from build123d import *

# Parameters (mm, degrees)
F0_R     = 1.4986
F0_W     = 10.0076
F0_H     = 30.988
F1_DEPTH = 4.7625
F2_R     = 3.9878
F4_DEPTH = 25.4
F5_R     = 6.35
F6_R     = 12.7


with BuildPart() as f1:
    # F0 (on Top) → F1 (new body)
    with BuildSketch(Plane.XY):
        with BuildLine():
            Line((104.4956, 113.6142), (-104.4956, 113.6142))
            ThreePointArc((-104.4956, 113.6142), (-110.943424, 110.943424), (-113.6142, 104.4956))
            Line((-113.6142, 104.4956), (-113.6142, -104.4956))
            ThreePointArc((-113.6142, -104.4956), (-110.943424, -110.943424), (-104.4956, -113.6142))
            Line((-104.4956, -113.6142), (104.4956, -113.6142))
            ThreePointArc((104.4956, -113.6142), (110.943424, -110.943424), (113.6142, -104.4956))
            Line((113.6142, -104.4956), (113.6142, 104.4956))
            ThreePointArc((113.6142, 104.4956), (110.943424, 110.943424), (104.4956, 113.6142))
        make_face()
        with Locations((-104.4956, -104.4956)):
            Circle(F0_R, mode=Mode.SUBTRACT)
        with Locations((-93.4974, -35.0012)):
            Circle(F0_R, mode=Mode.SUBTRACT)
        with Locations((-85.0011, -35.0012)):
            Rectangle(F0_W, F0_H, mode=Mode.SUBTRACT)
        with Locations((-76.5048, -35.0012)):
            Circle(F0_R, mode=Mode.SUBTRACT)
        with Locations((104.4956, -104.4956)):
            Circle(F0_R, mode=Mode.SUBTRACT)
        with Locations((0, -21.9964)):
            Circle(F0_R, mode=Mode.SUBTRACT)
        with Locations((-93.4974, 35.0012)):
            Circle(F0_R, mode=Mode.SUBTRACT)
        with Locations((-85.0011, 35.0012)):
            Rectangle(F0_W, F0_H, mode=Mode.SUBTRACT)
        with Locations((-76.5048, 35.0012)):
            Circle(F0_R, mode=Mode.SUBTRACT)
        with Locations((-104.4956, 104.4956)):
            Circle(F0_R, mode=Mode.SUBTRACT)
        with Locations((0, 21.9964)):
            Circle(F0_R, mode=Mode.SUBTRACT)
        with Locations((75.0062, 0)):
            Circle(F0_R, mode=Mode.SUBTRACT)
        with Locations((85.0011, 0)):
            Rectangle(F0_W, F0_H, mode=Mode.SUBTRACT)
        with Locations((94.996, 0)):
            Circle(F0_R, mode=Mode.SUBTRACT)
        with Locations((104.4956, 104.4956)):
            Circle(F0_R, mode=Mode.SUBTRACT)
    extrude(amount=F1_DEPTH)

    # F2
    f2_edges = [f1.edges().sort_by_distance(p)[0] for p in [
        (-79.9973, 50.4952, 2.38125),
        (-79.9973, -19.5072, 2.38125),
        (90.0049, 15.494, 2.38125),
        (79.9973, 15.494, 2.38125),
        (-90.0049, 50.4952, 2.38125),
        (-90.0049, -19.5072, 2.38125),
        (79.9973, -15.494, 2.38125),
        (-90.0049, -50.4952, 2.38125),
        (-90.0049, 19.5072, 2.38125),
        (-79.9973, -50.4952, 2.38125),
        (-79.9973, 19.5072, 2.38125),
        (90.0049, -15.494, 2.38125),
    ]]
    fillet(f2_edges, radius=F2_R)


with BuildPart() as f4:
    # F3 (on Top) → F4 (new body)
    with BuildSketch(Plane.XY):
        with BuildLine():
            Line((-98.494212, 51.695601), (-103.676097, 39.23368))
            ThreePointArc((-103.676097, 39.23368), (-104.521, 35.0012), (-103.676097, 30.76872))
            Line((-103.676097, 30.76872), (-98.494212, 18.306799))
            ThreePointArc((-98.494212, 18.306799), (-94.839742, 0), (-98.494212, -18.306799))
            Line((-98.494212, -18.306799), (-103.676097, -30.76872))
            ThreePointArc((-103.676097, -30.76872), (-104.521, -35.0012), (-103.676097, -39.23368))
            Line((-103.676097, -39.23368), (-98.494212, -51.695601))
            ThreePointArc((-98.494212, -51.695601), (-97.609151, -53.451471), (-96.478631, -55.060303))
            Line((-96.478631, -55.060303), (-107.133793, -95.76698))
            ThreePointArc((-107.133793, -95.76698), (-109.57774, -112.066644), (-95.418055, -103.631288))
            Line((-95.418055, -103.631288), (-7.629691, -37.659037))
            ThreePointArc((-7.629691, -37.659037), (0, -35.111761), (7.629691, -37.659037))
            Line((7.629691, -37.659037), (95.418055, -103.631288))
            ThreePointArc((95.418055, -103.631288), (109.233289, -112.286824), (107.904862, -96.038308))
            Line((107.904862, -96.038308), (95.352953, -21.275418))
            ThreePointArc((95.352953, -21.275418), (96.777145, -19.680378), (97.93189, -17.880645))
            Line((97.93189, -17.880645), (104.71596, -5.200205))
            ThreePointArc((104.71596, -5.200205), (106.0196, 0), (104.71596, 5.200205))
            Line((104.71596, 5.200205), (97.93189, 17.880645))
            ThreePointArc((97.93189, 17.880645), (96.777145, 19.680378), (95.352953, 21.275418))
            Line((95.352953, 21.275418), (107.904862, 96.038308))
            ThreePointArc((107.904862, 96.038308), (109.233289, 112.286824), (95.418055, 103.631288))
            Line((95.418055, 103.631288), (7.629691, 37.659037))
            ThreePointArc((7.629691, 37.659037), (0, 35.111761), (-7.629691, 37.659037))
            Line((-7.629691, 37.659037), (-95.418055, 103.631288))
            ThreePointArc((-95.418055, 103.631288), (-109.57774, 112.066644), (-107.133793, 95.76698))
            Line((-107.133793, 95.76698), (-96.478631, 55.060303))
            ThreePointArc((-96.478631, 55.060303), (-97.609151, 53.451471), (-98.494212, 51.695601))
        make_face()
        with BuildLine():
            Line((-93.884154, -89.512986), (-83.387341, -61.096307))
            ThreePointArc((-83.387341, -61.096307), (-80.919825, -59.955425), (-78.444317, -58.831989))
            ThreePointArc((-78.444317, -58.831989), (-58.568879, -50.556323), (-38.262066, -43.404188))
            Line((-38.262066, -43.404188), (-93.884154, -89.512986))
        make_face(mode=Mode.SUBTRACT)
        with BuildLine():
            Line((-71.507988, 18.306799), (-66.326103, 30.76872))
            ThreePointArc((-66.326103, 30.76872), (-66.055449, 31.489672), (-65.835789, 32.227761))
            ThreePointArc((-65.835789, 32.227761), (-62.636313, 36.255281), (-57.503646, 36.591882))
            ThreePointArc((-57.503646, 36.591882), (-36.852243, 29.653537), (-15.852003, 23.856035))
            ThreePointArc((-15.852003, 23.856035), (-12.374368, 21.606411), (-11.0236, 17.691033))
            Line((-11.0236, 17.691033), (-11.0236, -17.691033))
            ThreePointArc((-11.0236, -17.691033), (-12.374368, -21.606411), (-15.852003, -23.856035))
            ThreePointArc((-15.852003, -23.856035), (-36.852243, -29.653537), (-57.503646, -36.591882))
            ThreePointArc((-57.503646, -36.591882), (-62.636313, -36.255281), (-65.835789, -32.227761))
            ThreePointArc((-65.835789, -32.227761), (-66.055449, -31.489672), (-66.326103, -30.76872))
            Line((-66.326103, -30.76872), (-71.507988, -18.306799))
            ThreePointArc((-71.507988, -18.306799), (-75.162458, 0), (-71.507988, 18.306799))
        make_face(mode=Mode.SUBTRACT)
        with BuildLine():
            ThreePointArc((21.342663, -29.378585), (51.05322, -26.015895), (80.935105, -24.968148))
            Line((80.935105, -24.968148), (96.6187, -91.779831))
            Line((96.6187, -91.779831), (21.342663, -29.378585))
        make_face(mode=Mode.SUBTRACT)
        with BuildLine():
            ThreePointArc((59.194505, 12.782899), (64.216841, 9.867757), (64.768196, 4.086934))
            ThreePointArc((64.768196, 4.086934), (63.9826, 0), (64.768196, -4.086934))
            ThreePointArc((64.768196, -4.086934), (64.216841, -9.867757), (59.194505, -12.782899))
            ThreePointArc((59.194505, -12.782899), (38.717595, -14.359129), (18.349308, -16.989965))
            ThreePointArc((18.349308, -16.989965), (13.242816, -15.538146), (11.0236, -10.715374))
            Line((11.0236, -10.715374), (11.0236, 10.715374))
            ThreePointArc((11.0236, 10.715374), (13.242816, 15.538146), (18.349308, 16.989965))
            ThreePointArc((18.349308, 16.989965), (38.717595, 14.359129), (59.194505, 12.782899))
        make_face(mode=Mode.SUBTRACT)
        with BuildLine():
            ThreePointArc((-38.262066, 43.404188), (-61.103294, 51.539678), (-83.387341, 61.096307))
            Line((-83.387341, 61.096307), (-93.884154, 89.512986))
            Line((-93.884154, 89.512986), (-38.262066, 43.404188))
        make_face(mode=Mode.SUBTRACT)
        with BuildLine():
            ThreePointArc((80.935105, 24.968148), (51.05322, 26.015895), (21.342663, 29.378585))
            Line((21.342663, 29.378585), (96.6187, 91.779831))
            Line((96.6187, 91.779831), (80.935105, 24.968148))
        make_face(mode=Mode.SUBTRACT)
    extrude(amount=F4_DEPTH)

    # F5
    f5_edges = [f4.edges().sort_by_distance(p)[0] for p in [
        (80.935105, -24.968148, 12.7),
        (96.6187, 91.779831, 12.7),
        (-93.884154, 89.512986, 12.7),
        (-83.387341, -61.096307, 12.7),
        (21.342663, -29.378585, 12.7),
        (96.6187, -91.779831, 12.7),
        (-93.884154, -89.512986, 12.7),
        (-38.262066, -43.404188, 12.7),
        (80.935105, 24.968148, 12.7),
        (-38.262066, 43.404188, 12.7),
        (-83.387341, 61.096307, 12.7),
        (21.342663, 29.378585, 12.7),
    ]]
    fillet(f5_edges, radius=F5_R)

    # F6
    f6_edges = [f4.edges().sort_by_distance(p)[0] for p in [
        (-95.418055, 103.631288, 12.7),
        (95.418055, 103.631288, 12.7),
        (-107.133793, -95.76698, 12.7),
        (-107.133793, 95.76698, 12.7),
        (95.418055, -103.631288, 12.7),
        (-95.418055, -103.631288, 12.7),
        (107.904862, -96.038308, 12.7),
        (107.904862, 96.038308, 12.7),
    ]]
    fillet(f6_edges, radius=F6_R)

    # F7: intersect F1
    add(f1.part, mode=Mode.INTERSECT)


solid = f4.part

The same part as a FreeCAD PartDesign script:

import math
import FreeCAD as App
import Part
import Sketcher
Q = App.Units.Quantity


def edges_at(feature, points):
    """Names of the edges that pass closest to the given points."""
    edges = feature.Shape.Edges
    near = lambda p: min(range(len(edges)), key=lambda i: edges[i].distToShape(Part.Vertex(*p))[0])
    return sorted({f"Edge{near(p) + 1}" for p in points})

doc = App.newDocument("Part")
params = doc.addObject("Spreadsheet::Sheet", "Params")
for row, (alias, value) in enumerate([
    ("sketch1_diameter", "0.118 in"),
    ("sketch1_radius", "0.359 in"),
    ("sketch1_height", "1.22 in"),
    ("sketch1_width", "8.228 in"),
    ("sketch1_width2", "0.394 in"),
    ("pad1_length", "0.1875 in"),
    ("fillet_radius", "0.157 in"),
    ("sketch2_radius", "0.4999999 in"),
    ("sketch2_radius2", "0.4999999 in"),
    ("sketch2_radius3", "0.25 in"),
    ("sketch2_radius4", "0.25 in"),
    ("sketch2_radius5", "0.25 in"),
    ("pad2_length", "1 in"),
    ("fillet2_radius", "0.25 in"),
    ("fillet3_radius", "0.5 in"),
], start=1):
    params.set(f"A{row}", alias)
    params.set(f"B{row}", "=" + value)
    params.setAlias(f"B{row}", alias)

body = doc.addObject("PartDesign::Body", "Body")

sketch1 = body.newObject("Sketcher::SketchObject", "Sketch")
sketch1.AttachmentSupport = (doc.getObject("XY_Plane"), [""])
sketch1.MapMode = "FlatFace"
sketch1.addGeometry(Part.LineSegment(App.Vector(104.4956, 113.6142, 0), App.Vector(-104.4956, 113.6142, 0)), False)
sketch1.addGeometry(Part.ArcOfCircle(Part.Circle(App.Vector(-104.4956, 104.4956, 0), App.Vector(0, 0, 1), 9.1186), math.radians(89.999998), math.radians(180.000002)), False)
sketch1.addGeometry(Part.LineSegment(App.Vector(-113.6142, 104.4956, 0), App.Vector(-113.6142, -104.4956, 0)), False)
sketch1.addGeometry(Part.ArcOfCircle(Part.Circle(App.Vector(-104.4956, -104.4956, 0), App.Vector(0, 0, 1), 9.1186), math.radians(179.999998), math.radians(270.000002)), False)
sketch1.addGeometry(Part.LineSegment(App.Vector(-104.4956, -113.6142, 0), App.Vector(104.4956, -113.6142, 0)), False)
sketch1.addGeometry(Part.ArcOfCircle(Part.Circle(App.Vector(104.4956, -104.4956, 0), App.Vector(0, 0, 1), 9.1186), math.radians(-90.000002), math.radians(0.000002)), False)
sketch1.addGeometry(Part.LineSegment(App.Vector(113.6142, -104.4956, 0), App.Vector(113.6142, 104.4956, 0)), False)
sketch1.addGeometry(Part.ArcOfCircle(Part.Circle(App.Vector(104.4956, 104.4956, 0), App.Vector(0, 0, 1), 9.1186), math.radians(-0.000002), math.radians(90.000002)), False)
sketch1.addGeometry(Part.Circle(App.Vector(-104.4956, -104.4956, 0), App.Vector(0, 0, 1), 1.4986), False)
sketch1.addGeometry(Part.Circle(App.Vector(-93.4974, -35.0012, 0), App.Vector(0, 0, 1), 1.4986), False)
sketch1.addGeometry(Part.LineSegment(App.Vector(-79.9973, -50.4952, 0), App.Vector(-90.0049, -50.4952, 0)), False)
sketch1.addGeometry(Part.LineSegment(App.Vector(-90.0049, -50.4952, 0), App.Vector(-90.0049, -19.5072, 0)), False)
sketch1.addGeometry(Part.LineSegment(App.Vector(-90.0049, -19.5072, 0), App.Vector(-79.9973, -19.5072, 0)), False)
sketch1.addGeometry(Part.LineSegment(App.Vector(-79.9973, -19.5072, 0), App.Vector(-79.9973, -50.4952, 0)), False)
sketch1.addGeometry(Part.Circle(App.Vector(-76.5048, -35.0012, 0), App.Vector(0, 0, 1), 1.4986), False)
sketch1.addGeometry(Part.Circle(App.Vector(104.4956, -104.4956, 0), App.Vector(0, 0, 1), 1.4986), False)
sketch1.addGeometry(Part.Circle(App.Vector(0, -21.9964, 0), App.Vector(0, 0, 1), 1.4986), False)
sketch1.addGeometry(Part.Circle(App.Vector(-93.4974, 35.0012, 0), App.Vector(0, 0, 1), 1.4986), False)
sketch1.addGeometry(Part.LineSegment(App.Vector(-79.9973, 19.5072, 0), App.Vector(-90.0049, 19.5072, 0)), False)
sketch1.addGeometry(Part.LineSegment(App.Vector(-90.0049, 19.5072, 0), App.Vector(-90.0049, 50.4952, 0)), False)
sketch1.addGeometry(Part.LineSegment(App.Vector(-90.0049, 50.4952, 0), App.Vector(-79.9973, 50.4952, 0)), False)
sketch1.addGeometry(Part.LineSegment(App.Vector(-79.9973, 50.4952, 0), App.Vector(-79.9973, 19.5072, 0)), False)
sketch1.addGeometry(Part.Circle(App.Vector(-76.5048, 35.0012, 0), App.Vector(0, 0, 1), 1.4986), False)
sketch1.addGeometry(Part.Circle(App.Vector(-104.4956, 104.4956, 0), App.Vector(0, 0, 1), 1.4986), False)
sketch1.addGeometry(Part.Circle(App.Vector(0, 21.9964, 0), App.Vector(0, 0, 1), 1.4986), False)
sketch1.addGeometry(Part.Circle(App.Vector(75.0062, 0, 0), App.Vector(0, 0, 1), 1.4986), False)
sketch1.addGeometry(Part.LineSegment(App.Vector(90.0049, -15.494, 0), App.Vector(79.9973, -15.494, 0)), False)
sketch1.addGeometry(Part.LineSegment(App.Vector(79.9973, -15.494, 0), App.Vector(79.9973, 15.494, 0)), False)
sketch1.addGeometry(Part.LineSegment(App.Vector(79.9973, 15.494, 0), App.Vector(90.0049, 15.494, 0)), False)
sketch1.addGeometry(Part.LineSegment(App.Vector(90.0049, 15.494, 0), App.Vector(90.0049, -15.494, 0)), False)
sketch1.addGeometry(Part.Circle(App.Vector(94.996, 0, 0), App.Vector(0, 0, 1), 1.4986), False)
sketch1.addGeometry(Part.Circle(App.Vector(104.4956, 104.4956, 0), App.Vector(0, 0, 1), 1.4986), False)
sketch1.addConstraint(Sketcher.Constraint("Tangent", 0, 2, 1, 1))
sketch1.addConstraint(Sketcher.Constraint("Tangent", 1, 2, 2, 1))
sketch1.addConstraint(Sketcher.Constraint("Tangent", 2, 2, 3, 1))
sketch1.addConstraint(Sketcher.Constraint("Tangent", 3, 2, 4, 1))
sketch1.addConstraint(Sketcher.Constraint("Tangent", 4, 2, 5, 1))
sketch1.addConstraint(Sketcher.Constraint("Tangent", 5, 2, 6, 1))
sketch1.addConstraint(Sketcher.Constraint("Tangent", 6, 2, 7, 1))
sketch1.addConstraint(Sketcher.Constraint("Tangent", 7, 2, 0, 1))
sketch1.addConstraint(Sketcher.Constraint("Coincident", 10, 2, 11, 1))
sketch1.addConstraint(Sketcher.Constraint("Coincident", 11, 2, 12, 1))
sketch1.addConstraint(Sketcher.Constraint("Coincident", 12, 2, 13, 1))
sketch1.addConstraint(Sketcher.Constraint("Coincident", 13, 2, 10, 1))
sketch1.addConstraint(Sketcher.Constraint("Coincident", 18, 2, 19, 1))
sketch1.addConstraint(Sketcher.Constraint("Coincident", 19, 2, 20, 1))
sketch1.addConstraint(Sketcher.Constraint("Coincident", 20, 2, 21, 1))
sketch1.addConstraint(Sketcher.Constraint("Coincident", 21, 2, 18, 1))
sketch1.addConstraint(Sketcher.Constraint("Coincident", 26, 2, 27, 1))
sketch1.addConstraint(Sketcher.Constraint("Coincident", 27, 2, 28, 1))
sketch1.addConstraint(Sketcher.Constraint("Coincident", 28, 2, 29, 1))
sketch1.addConstraint(Sketcher.Constraint("Coincident", 29, 2, 26, 1))
sketch1.addConstraint(Sketcher.Constraint("Horizontal", 0))
sketch1.addConstraint(Sketcher.Constraint("Vertical", 2))
sketch1.addConstraint(Sketcher.Constraint("Horizontal", 4))
sketch1.addConstraint(Sketcher.Constraint("Vertical", 6))
sketch1.addConstraint(Sketcher.Constraint("Horizontal", 10))
sketch1.addConstraint(Sketcher.Constraint("Vertical", 11))
sketch1.addConstraint(Sketcher.Constraint("Horizontal", 12))
sketch1.addConstraint(Sketcher.Constraint("Vertical", 13))
sketch1.addConstraint(Sketcher.Constraint("Horizontal", 18))
sketch1.addConstraint(Sketcher.Constraint("Vertical", 19))
sketch1.addConstraint(Sketcher.Constraint("Horizontal", 20))
sketch1.addConstraint(Sketcher.Constraint("Vertical", 21))
sketch1.addConstraint(Sketcher.Constraint("Horizontal", 26))
sketch1.addConstraint(Sketcher.Constraint("Vertical", 27))
sketch1.addConstraint(Sketcher.Constraint("Horizontal", 28))
sketch1.addConstraint(Sketcher.Constraint("Vertical", 29))
sketch1.addConstraint(Sketcher.Constraint("Coincident", 8, 3, 3, 3))
sketch1.addConstraint(Sketcher.Constraint("Coincident", 15, 3, 5, 3))
sketch1.addConstraint(Sketcher.Constraint("Coincident", 23, 3, 1, 3))
sketch1.addConstraint(Sketcher.Constraint("Coincident", 31, 3, 7, 3))
sketch1.addConstraint(Sketcher.Constraint("Equal", 1, 3))
sketch1.addConstraint(Sketcher.Constraint("Equal", 3, 5))
sketch1.addConstraint(Sketcher.Constraint("Equal", 5, 7))
sketch1.addConstraint(Sketcher.Constraint("Equal", 8, 9))
sketch1.addConstraint(Sketcher.Constraint("Equal", 9, 14))
sketch1.addConstraint(Sketcher.Constraint("Equal", 14, 15))
sketch1.addConstraint(Sketcher.Constraint("Equal", 15, 16))
sketch1.addConstraint(Sketcher.Constraint("Equal", 16, 17))
sketch1.addConstraint(Sketcher.Constraint("Equal", 17, 22))
sketch1.addConstraint(Sketcher.Constraint("Equal", 22, 23))
sketch1.addConstraint(Sketcher.Constraint("Equal", 23, 24))
sketch1.addConstraint(Sketcher.Constraint("Equal", 24, 25))
sketch1.addConstraint(Sketcher.Constraint("Equal", 25, 30))
sketch1.addConstraint(Sketcher.Constraint("Equal", 30, 31))
sketch1.addConstraint(Sketcher.Constraint("Symmetric", 1, 3, 5, 3, -1, 1))
sketch1.addConstraint(Sketcher.Constraint("Symmetric", 16, 3, 24, 3, -1, 1))
sketch1.addConstraint(Sketcher.Constraint("Symmetric", 9, 3, 17, 3, -1))
sketch1.addConstraint(Sketcher.Constraint("Symmetric", 14, 3, 22, 3, -1))
sketch1.addConstraint(Sketcher.Constraint("Symmetric", 11, 2, 18, 2, -1))
sketch1.addConstraint(Sketcher.Constraint("Symmetric", 13, 2, 20, 2, -1))
sketch1.addConstraint(Sketcher.Constraint("PointOnObject", 16, 3, -2))
sketch1.addConstraint(Sketcher.Constraint("PointOnObject", 25, 3, -1))
sketch1.addConstraint(Sketcher.Constraint("PointOnObject", 30, 3, -1))
sketch1.addConstraint(Sketcher.Constraint("Horizontal", 9, 3, 14, 3))
sketch1.addConstraint(Sketcher.Constraint("Equal", 20, 26))
sketch1.addConstraint(Sketcher.Constraint("Equal", 4, 2))
sketch1.addConstraint(Sketcher.Constraint("Equal", 21, 27))
sketch1.addConstraint(Sketcher.Constraint("Diameter", 8, Q("0.118 in")))
sketch1.addConstraint(Sketcher.Constraint("Radius", 1, Q("0.359 in")))
sketch1.addConstraint(Sketcher.Constraint("DistanceY", 11, 1, 11, 2, Q("1.22 in")))
sketch1.addConstraint(Sketcher.Constraint("DistanceX", 0, 2, 0, 1, Q("8.228 in")))
sketch1.addConstraint(Sketcher.Constraint("DistanceX", 10, 2, 10, 1, Q("0.394 in")))
sketch1.addConstraint(Sketcher.Constraint("DistanceX", -1, 1, 30, 3, Q("3.74 in")))
sketch1.addConstraint(Sketcher.Constraint("DistanceY", 26, 2, -1, 1, Q("0.61 in")))
sketch1.addConstraint(Sketcher.Constraint("DistanceY", 16, 3, 31, 3, Q("4.98 in")))
sketch1.addConstraint(Sketcher.Constraint("DistanceX", 25, 3, 5, 2, Q("1.52 in")))
sketch1.addConstraint(Sketcher.Constraint("DistanceY", 10, 2, 9, 3, Q("0.61 in")))
sketch1.addConstraint(Sketcher.Constraint("DistanceX", 9, 3, -1, 1, Q("3.681 in")))
sketch1.addConstraint(Sketcher.Constraint("DistanceY", 9, 3, -1, 1, Q("1.378 in")))
sketch1.addConstraint(Sketcher.Constraint("DistanceX", 14, 3, -1, 1, Q("3.012 in")))
sketch1.addConstraint(Sketcher.Constraint("DistanceX", 10, 2, -1, 1, Q("3.5435 in")))
sketch1.addConstraint(Sketcher.Constraint("DistanceX", -1, 1, 26, 2, Q("3.1495 in")))
sketch1.setExpression("Constraints[67]", "Params.sketch1_diameter")
sketch1.setExpression("Constraints[68]", "Params.sketch1_radius")
sketch1.setExpression("Constraints[69]", "Params.sketch1_height")
sketch1.setExpression("Constraints[70]", "Params.sketch1_width")
sketch1.setExpression("Constraints[71]", "Params.sketch1_width2")
pad1 = body.newObject("PartDesign::Pad", "Pad")
pad1.Profile = sketch1
pad1.setExpression("Length", "Params.pad1_length")
doc.recompute()

fillet = body.newObject("PartDesign::Fillet", "Fillet")
fillet.Base = (pad1, edges_at(pad1, [
    (-79.997, 50.495, 2.381),
    (-79.997, -19.507, 2.381),
    (90.005, 15.494, 2.381),
    (79.997, 15.494, 2.381),
    (-90.005, 50.495, 2.381),
    (-90.005, -19.507, 2.381),
    (79.997, -15.494, 2.381),
    (-90.005, -50.495, 2.381),
    (-90.005, 19.507, 2.381),
    (-79.997, -50.495, 2.381),
    (-79.997, 19.507, 2.381),
    (90.005, -15.494, 2.381),
]))
fillet.setExpression("Radius", "Params.fillet_radius")
body2 = doc.addObject("PartDesign::Body", "Body001")

sketch2 = body2.newObject("Sketcher::SketchObject", "Sketch001")
sketch2.AttachmentSupport = (doc.getObject("XY_Plane001"), [""])
sketch2.MapMode = "FlatFace"
sketch2.addGeometry(Part.LineSegment(App.Vector(-98.494212, 51.695601, 0), App.Vector(-103.676097, 39.23368, 0)), False)
sketch2.addGeometry(Part.ArcOfCircle(Part.Circle(App.Vector(-93.497398, 35.0012, 0), App.Vector(0, 0, 1), 11.023602), math.radians(157.421609), math.radians(202.578391)), False)
sketch2.addGeometry(Part.LineSegment(App.Vector(-103.676097, 30.76872, 0), App.Vector(-98.494212, 18.306799, 0)), False)
sketch2.addGeometry(Part.ArcOfCircle(Part.Circle(App.Vector(-142.520259, 0, 0), App.Vector(0, 0, 1), 47.680517), math.radians(-22.578394), math.radians(22.578394)), False)
sketch2.addGeometry(Part.LineSegment(App.Vector(-98.494212, -18.306799, 0), App.Vector(-103.676097, -30.76872, 0)), False)
sketch2.addGeometry(Part.ArcOfCircle(Part.Circle(App.Vector(-93.497398, -35.0012, 0), App.Vector(0, 0, 1), 11.023602), math.radians(157.421609), math.radians(202.578391)), False)
sketch2.addGeometry(Part.LineSegment(App.Vector(-103.676097, -39.23368, 0), App.Vector(-98.494212, -51.695601, 0)), False)
sketch2.addGeometry(Part.ArcOfCircle(Part.Circle(App.Vector(-86.017102, -46.507405, 0), App.Vector(0, 0, 1), 13.512795), math.radians(-157.421623), math.radians(-140.732039)), False)
sketch2.addGeometry(Part.LineSegment(App.Vector(-96.478631, -55.060303, 0), App.Vector(-107.133793, -95.76698, 0)), False)
sketch2.addGeometry(Part.ArcOfCircle(Part.Circle(App.Vector(-104.4956, -104.4956, 0), App.Vector(0, 0, 1), 9.1186), math.radians(106.817247), math.radians(365.438977)), False)
sketch2.addGeometry(Part.LineSegment(App.Vector(-95.418055, -103.631288, 0), App.Vector(-7.629691, -37.659037, 0)), False)
sketch2.addGeometry(Part.ArcOfCircle(Part.Circle(App.Vector(0, -47.811759, 0), App.Vector(0, 0, 1), 12.699998), math.radians(53.075425), math.radians(126.924575)), False)
sketch2.addGeometry(Part.LineSegment(App.Vector(7.629691, -37.659037, 0), App.Vector(95.418055, -103.631288, 0)), False)
sketch2.addGeometry(Part.ArcOfCircle(Part.Circle(App.Vector(104.4956, -104.4956, 0), App.Vector(0, 0, 1), 9.1186), math.radians(174.561017), math.radians(428.044894)), False)
sketch2.addGeometry(Part.LineSegment(App.Vector(107.904862, -96.038308, 0), App.Vector(95.352953, -21.275418, 0)), False)
sketch2.addGeometry(Part.ArcOfCircle(Part.Circle(App.Vector(86.017061, -11.506171, 0), App.Vector(0, 0, 1), 13.512848), math.radians(-46.299398), math.radians(-28.146934)), False)
sketch2.addGeometry(Part.LineSegment(App.Vector(97.93189, -17.880645, 0), App.Vector(104.71596, -5.200205, 0)), False)
sketch2.addGeometry(Part.ArcOfCircle(Part.Circle(App.Vector(94.996001, 0, 0), App.Vector(0, 0, 1), 11.023599), math.radians(-28.146905), math.radians(28.146905)), False)
sketch2.addGeometry(Part.LineSegment(App.Vector(104.71596, 5.200205, 0), App.Vector(97.93189, 17.880645, 0)), False)
sketch2.addGeometry(Part.ArcOfCircle(Part.Circle(App.Vector(86.017061, 11.506171, 0), App.Vector(0, 0, 1), 13.512848), math.radians(28.146934), math.radians(46.299398)), False)
sketch2.addGeometry(Part.LineSegment(App.Vector(95.352953, 21.275418, 0), App.Vector(107.904862, 96.038308, 0)), False)
sketch2.addGeometry(Part.ArcOfCircle(Part.Circle(App.Vector(104.4956, 104.4956, 0), App.Vector(0, 0, 1), 9.1186), math.radians(-68.044894), math.radians(185.438983)), False)
sketch2.addGeometry(Part.LineSegment(App.Vector(95.418055, 103.631288, 0), App.Vector(7.629691, 37.659037, 0)), False)
sketch2.addGeometry(Part.ArcOfCircle(Part.Circle(App.Vector(0, 47.811759, 0), App.Vector(0, 0, 1), 12.699998), math.radians(-126.924575), math.radians(-53.075425)), False)
sketch2.addGeometry(Part.LineSegment(App.Vector(-7.629691, 37.659037, 0), App.Vector(-95.418055, 103.631288, 0)), False)
sketch2.addGeometry(Part.ArcOfCircle(Part.Circle(App.Vector(-104.4956, 104.4956, 0), App.Vector(0, 0, 1), 9.1186), math.radians(-5.438977), math.radians(253.182753)), False)
sketch2.addGeometry(Part.LineSegment(App.Vector(-107.133793, 95.76698, 0), App.Vector(-96.478631, 55.060303, 0)), False)
sketch2.addGeometry(Part.ArcOfCircle(Part.Circle(App.Vector(-86.017102, 46.507405, 0), App.Vector(0, 0, 1), 13.512795), math.radians(140.732039), math.radians(157.421623)), False)
sketch2.addGeometry(Part.LineSegment(App.Vector(-38.262066, -43.404188, 0), App.Vector(-93.884154, -89.512986, 0)), False)
sketch2.addGeometry(Part.LineSegment(App.Vector(-93.884154, -89.512986, 0), App.Vector(-83.387341, -61.096307, 0)), False)
sketch2.addGeometry(Part.ArcOfCircle(Part.Circle(App.Vector(79.470107, -410.087907, 0), App.Vector(0, 0, 1), 385.120352), math.radians(114.207295), math.radians(115.016179)), False)
sketch2.addGeometry(Part.ArcOfCircle(Part.Circle(App.Vector(79.479917, -410.109274, 0), App.Vector(0, 0, 1), 385.143863), math.radians(107.80083), math.radians(114.207322)), False)
sketch2.addGeometry(Part.LineSegment(App.Vector(96.6187, -91.779831, 0), App.Vector(21.342663, -29.378585, 0)), False)
sketch2.addGeometry(Part.ArcOfCircle(Part.Circle(App.Vector(79.479982, -410.109392, 0), App.Vector(0, 0, 1), 385.143993), math.radians(89.783529), math.radians(98.681959)), False)
sketch2.addGeometry(Part.LineSegment(App.Vector(80.935105, -24.968148, 0), App.Vector(96.6187, -91.779831, 0)), False)
sketch2.addGeometry(Part.ArcOfCircle(Part.Circle(App.Vector(-27.481941, 0, 0), App.Vector(0, 0, 1), 47.680517), math.radians(157.421606), math.radians(202.578394)), False)
sketch2.addGeometry(Part.LineSegment(App.Vector(-71.507988, 18.306799, 0), App.Vector(-66.326103, 30.76872, 0)), False)
sketch2.addGeometry(Part.ArcOfCircle(Part.Circle(App.Vector(-76.504701, 35.001167, 0), App.Vector(0, 0, 1), 11.023496), math.radians(-22.578432), math.radians(-14.571644)), False)
sketch2.addGeometry(Part.ArcOfCircle(Part.Circle(App.Vector(-59.690046, 30.630159, 0), App.Vector(0, 0, 1), 6.349999), math.radians(69.860013), math.radians(165.428324)), False)
sketch2.addGeometry(Part.ArcOfCircle(Part.Circle(App.Vector(79.479895, 410.109164, 0), App.Vector(0, 0, 1), 397.843752), math.radians(-110.139982), math.radians(-103.864199)), False)
sketch2.addGeometry(Part.ArcOfCircle(Part.Circle(App.Vector(-17.3736, 17.691034, 0), App.Vector(0, 0, 1), 6.35), math.radians(-0.000007), math.radians(76.135796)), False)
sketch2.addGeometry(Part.LineSegment(App.Vector(-11.0236, 17.691033, 0), App.Vector(-11.0236, -17.691033, 0)), False)
sketch2.addGeometry(Part.ArcOfCircle(Part.Circle(App.Vector(-17.3736, -17.691034, 0), App.Vector(0, 0, 1), 6.35), math.radians(-76.135796), math.radians(0.000007)), False)
sketch2.addGeometry(Part.ArcOfCircle(Part.Circle(App.Vector(79.479895, -410.109164, 0), App.Vector(0, 0, 1), 397.843752), math.radians(103.864199), math.radians(110.139982)), False)
sketch2.addGeometry(Part.ArcOfCircle(Part.Circle(App.Vector(-59.690046, -30.630159, 0), App.Vector(0, 0, 1), 6.349999), math.radians(-165.428324), math.radians(-69.860013)), False)
sketch2.addGeometry(Part.ArcOfCircle(Part.Circle(App.Vector(-76.504701, -35.001167, 0), App.Vector(0, 0, 1), 11.023496), math.radians(14.571644), math.radians(22.578432)), False)
sketch2.addGeometry(Part.LineSegment(App.Vector(-66.326103, -30.76872, 0), App.Vector(-71.507988, -18.306799, 0)), False)
sketch2.addGeometry(Part.LineSegment(App.Vector(-93.884154, 89.512986, 0), App.Vector(-38.262066, 43.404188, 0)), False)
sketch2.addGeometry(Part.ArcOfCircle(Part.Circle(App.Vector(79.480004, 410.109501, 0), App.Vector(0, 0, 1), 385.144104), math.radians(-115.016155), math.radians(-107.800832)), False)
sketch2.addGeometry(Part.LineSegment(App.Vector(-83.387341, 61.096307, 0), App.Vector(-93.884154, 89.512986, 0)), False)
sketch2.addGeometry(Part.ArcOfCircle(Part.Circle(App.Vector(79.479979, 410.109434, 0), App.Vector(0, 0, 1), 397.844035), math.radians(-98.838791), math.radians(-92.922694)), False)
sketch2.addGeometry(Part.ArcOfCircle(Part.Circle(App.Vector(58.870728, 6.441158, 0), App.Vector(0, 0, 1), 6.35), math.radians(-21.761508), math.radians(87.077304)), False)
sketch2.addGeometry(Part.ArcOfCircle(Part.Circle(App.Vector(75.006199, 0, 0), App.Vector(0, 0, 1), 11.023599), math.radians(158.238486), math.radians(201.761514)), False)
sketch2.addGeometry(Part.ArcOfCircle(Part.Circle(App.Vector(58.870728, -6.441158, 0), App.Vector(0, 0, 1), 6.35), math.radians(-87.077304), math.radians(21.761508)), False)
sketch2.addGeometry(Part.ArcOfCircle(Part.Circle(App.Vector(79.479979, -410.109434, 0), App.Vector(0, 0, 1), 397.844035), math.radians(92.922694), math.radians(98.838791)), False)
sketch2.addGeometry(Part.ArcOfCircle(Part.Circle(App.Vector(17.373599, -10.715375, 0), App.Vector(0, 0, 1), 6.349999), math.radians(179.99999), math.radians(278.838799)), False)
sketch2.addGeometry(Part.LineSegment(App.Vector(11.0236, -10.715374, 0), App.Vector(11.0236, 10.715374, 0)), False)
sketch2.addGeometry(Part.ArcOfCircle(Part.Circle(App.Vector(17.373599, 10.715375, 0), App.Vector(0, 0, 1), 6.349999), math.radians(81.161201), math.radians(180.00001)), False)
sketch2.addGeometry(Part.LineSegment(App.Vector(96.6187, 91.779831, 0), App.Vector(80.935105, 24.968148, 0)), False)
sketch2.addGeometry(Part.ArcOfCircle(Part.Circle(App.Vector(79.479982, 410.109392, 0), App.Vector(0, 0, 1), 385.143993), math.radians(-98.681959), math.radians(-89.783529)), False)
sketch2.addGeometry(Part.LineSegment(App.Vector(21.342663, 29.378585, 0), App.Vector(96.6187, 91.779831, 0)), False)
sketch2.addConstraint(Sketcher.Constraint("Coincident", 0, 2, 1, 1))
sketch2.addConstraint(Sketcher.Constraint("Coincident", 1, 2, 2, 1))
sketch2.addConstraint(Sketcher.Constraint("Coincident", 2, 2, 3, 2))
sketch2.addConstraint(Sketcher.Constraint("Coincident", 3, 1, 4, 1))
sketch2.addConstraint(Sketcher.Constraint("Coincident", 4, 2, 5, 1))
sketch2.addConstraint(Sketcher.Constraint("Coincident", 5, 2, 6, 1))
sketch2.addConstraint(Sketcher.Constraint("Coincident", 6, 2, 7, 1))
sketch2.addConstraint(Sketcher.Constraint("Coincident", 7, 2, 8, 1))
sketch2.addConstraint(Sketcher.Constraint("Coincident", 8, 2, 9, 1))
sketch2.addConstraint(Sketcher.Constraint("Coincident", 9, 2, 10, 1))
sketch2.addConstraint(Sketcher.Constraint("Coincident", 10, 2, 11, 2))
sketch2.addConstraint(Sketcher.Constraint("Coincident", 11, 1, 12, 1))
sketch2.addConstraint(Sketcher.Constraint("Coincident", 12, 2, 13, 1))
sketch2.addConstraint(Sketcher.Constraint("Coincident", 13, 2, 14, 1))
sketch2.addConstraint(Sketcher.Constraint("Coincident", 14, 2, 15, 1))
sketch2.addConstraint(Sketcher.Constraint("Coincident", 15, 2, 16, 1))
sketch2.addConstraint(Sketcher.Constraint("Coincident", 16, 2, 17, 1))
sketch2.addConstraint(Sketcher.Constraint("Coincident", 17, 2, 18, 1))
sketch2.addConstraint(Sketcher.Constraint("Coincident", 18, 2, 19, 1))
sketch2.addConstraint(Sketcher.Constraint("Coincident", 19, 2, 20, 1))
sketch2.addConstraint(Sketcher.Constraint("Coincident", 20, 2, 21, 1))
sketch2.addConstraint(Sketcher.Constraint("Coincident", 21, 2, 22, 1))
sketch2.addConstraint(Sketcher.Constraint("Coincident", 22, 2, 23, 2))
sketch2.addConstraint(Sketcher.Constraint("Coincident", 23, 1, 24, 1))
sketch2.addConstraint(Sketcher.Constraint("Coincident", 24, 2, 25, 1))
sketch2.addConstraint(Sketcher.Constraint("Coincident", 25, 2, 26, 1))
sketch2.addConstraint(Sketcher.Constraint("Coincident", 26, 2, 27, 1))
sketch2.addConstraint(Sketcher.Constraint("Coincident", 27, 2, 0, 1))
sketch2.addConstraint(Sketcher.Constraint("Coincident", 28, 2, 29, 1))
sketch2.addConstraint(Sketcher.Constraint("Coincident", 29, 2, 30, 2))
sketch2.addConstraint(Sketcher.Constraint("Coincident", 30, 1, 31, 2))
sketch2.addConstraint(Sketcher.Constraint("Coincident", 31, 1, 28, 1))
sketch2.addConstraint(Sketcher.Constraint("Coincident", 32, 2, 33, 2))
sketch2.addConstraint(Sketcher.Constraint("Coincident", 33, 1, 34, 1))
sketch2.addConstraint(Sketcher.Constraint("Coincident", 34, 2, 32, 1))
sketch2.addConstraint(Sketcher.Constraint("Coincident", 35, 1, 36, 1))
sketch2.addConstraint(Sketcher.Constraint("Coincident", 36, 2, 37, 1))
sketch2.addConstraint(Sketcher.Constraint("Coincident", 37, 2, 38, 2))
sketch2.addConstraint(Sketcher.Constraint("Coincident", 38, 1, 39, 1))
sketch2.addConstraint(Sketcher.Constraint("Coincident", 39, 2, 40, 2))
sketch2.addConstraint(Sketcher.Constraint("Coincident", 40, 1, 41, 1))
sketch2.addConstraint(Sketcher.Constraint("Coincident", 41, 2, 42, 2))
sketch2.addConstraint(Sketcher.Constraint("Coincident", 42, 1, 43, 1))
sketch2.addConstraint(Sketcher.Constraint("Coincident", 43, 2, 44, 2))
sketch2.addConstraint(Sketcher.Constraint("Coincident", 44, 1, 45, 1))
sketch2.addConstraint(Sketcher.Constraint("Coincident", 45, 2, 46, 1))
sketch2.addConstraint(Sketcher.Constraint("Coincident", 46, 2, 35, 2))
sketch2.addConstraint(Sketcher.Constraint("Coincident", 47, 2, 48, 2))
sketch2.addConstraint(Sketcher.Constraint("Coincident", 48, 1, 49, 1))
sketch2.addConstraint(Sketcher.Constraint("Coincident", 49, 2, 47, 1))
sketch2.addConstraint(Sketcher.Constraint("Coincident", 50, 2, 51, 2))
sketch2.addConstraint(Sketcher.Constraint("Coincident", 51, 1, 52, 1))
sketch2.addConstraint(Sketcher.Constraint("Coincident", 52, 2, 53, 2))
sketch2.addConstraint(Sketcher.Constraint("Coincident", 53, 1, 54, 1))
sketch2.addConstraint(Sketcher.Constraint("Coincident", 54, 2, 55, 2))
sketch2.addConstraint(Sketcher.Constraint("Coincident", 55, 1, 56, 1))
sketch2.addConstraint(Sketcher.Constraint("Coincident", 56, 2, 57, 2))
sketch2.addConstraint(Sketcher.Constraint("Coincident", 57, 1, 50, 1))
sketch2.addConstraint(Sketcher.Constraint("Coincident", 58, 2, 59, 2))
sketch2.addConstraint(Sketcher.Constraint("Coincident", 59, 1, 60, 1))
sketch2.addConstraint(Sketcher.Constraint("Coincident", 60, 2, 58, 1))
sketch2.addConstraint(Sketcher.Constraint("Vertical", 41))
sketch2.addConstraint(Sketcher.Constraint("Vertical", 56))
sketch2.addConstraint(Sketcher.Constraint("PointOnObject", 3, 3, -1))
sketch2.addConstraint(Sketcher.Constraint("PointOnObject", 11, 3, -2))
sketch2.addConstraint(Sketcher.Constraint("PointOnObject", 17, 3, -1))
sketch2.addConstraint(Sketcher.Constraint("PointOnObject", 23, 3, -2))
sketch2.addConstraint(Sketcher.Constraint("PointOnObject", 35, 3, -1))
sketch2.addConstraint(Sketcher.Constraint("PointOnObject", 52, 3, -1))
sketch2.addConstraint(Sketcher.Constraint("Radius", 11, Q("0.4999999 in")))
sketch2.addConstraint(Sketcher.Constraint("Radius", 23, Q("0.4999999 in")))
sketch2.addConstraint(Sketcher.Constraint("Radius", 38, Q("0.25 in")))
sketch2.addConstraint(Sketcher.Constraint("Radius", 40, Q("0.25 in")))
sketch2.addConstraint(Sketcher.Constraint("Radius", 42, Q("0.25 in")))
sketch2.addConstraint(Sketcher.Constraint("Radius", 44, Q("0.25 in")))
sketch2.addConstraint(Sketcher.Constraint("Radius", 51, Q("0.25 in")))
sketch2.addConstraint(Sketcher.Constraint("Radius", 53, Q("0.25 in")))
sketch2.addConstraint(Sketcher.Constraint("Radius", 55, Q("0.25 in")))
sketch2.addConstraint(Sketcher.Constraint("Radius", 57, Q("0.25 in")))
sketch2.addConstraint(Sketcher.Constraint("Radius", 1, Q("0.4340001 in")))
sketch2.addConstraint(Sketcher.Constraint("Radius", 5, Q("0.4340001 in")))
sketch2.addConstraint(Sketcher.Constraint("Radius", 7, Q("0.5319998 in")))
sketch2.addConstraint(Sketcher.Constraint("Radius", 9, Q("0.359 in")))
sketch2.addConstraint(Sketcher.Constraint("Radius", 13, Q("0.359 in")))
sketch2.addConstraint(Sketcher.Constraint("Radius", 17, Q("0.434 in")))
sketch2.addConstraint(Sketcher.Constraint("Radius", 21, Q("0.359 in")))
sketch2.addConstraint(Sketcher.Constraint("Radius", 25, Q("0.359 in")))
sketch2.addConstraint(Sketcher.Constraint("Radius", 27, Q("0.5319998 in")))
sketch2.addConstraint(Sketcher.Constraint("Radius", 52, Q("0.434 in")))
sketch2.addConstraint(Sketcher.Constraint("DistanceX", -1, 1, 17, 3, Q("3.74 in")))
sketch2.addConstraint(Sketcher.Constraint("DistanceX", 1, 3, -1, 1, Q("3.6809999 in")))
sketch2.addConstraint(Sketcher.Constraint("DistanceY", -1, 1, 1, 3, Q("1.378 in")))
sketch2.addConstraint(Sketcher.Constraint("DistanceX", 5, 3, -1, 1, Q("3.6809999 in")))
sketch2.addConstraint(Sketcher.Constraint("DistanceY", 5, 3, -1, 1, Q("1.378 in")))
sketch2.addConstraint(Sketcher.Constraint("DistanceX", 9, 3, -1, 1, Q("4.114 in")))
sketch2.addConstraint(Sketcher.Constraint("DistanceY", 9, 3, -1, 1, Q("4.114 in")))
sketch2.addConstraint(Sketcher.Constraint("DistanceX", -1, 1, 13, 3, Q("4.114 in")))
sketch2.addConstraint(Sketcher.Constraint("DistanceY", 13, 3, -1, 1, Q("4.114 in")))
sketch2.addConstraint(Sketcher.Constraint("DistanceX", -1, 1, 21, 3, Q("4.114 in")))
sketch2.addConstraint(Sketcher.Constraint("DistanceY", -1, 1, 21, 3, Q("4.114 in")))
sketch2.addConstraint(Sketcher.Constraint("DistanceX", 25, 3, -1, 1, Q("4.114 in")))
sketch2.addConstraint(Sketcher.Constraint("DistanceY", -1, 1, 25, 3, Q("4.114 in")))
sketch2.addConstraint(Sketcher.Constraint("DistanceX", 40, 3, -1, 1, Q("0.684 in")))
sketch2.addConstraint(Sketcher.Constraint("DistanceX", -1, 1, 52, 3, Q("2.953 in")))
sketch2.addConstraint(Sketcher.Constraint("DistanceX", -1, 1, 55, 3, Q("0.684 in")))
sketch2.addConstraint(Sketcher.Constraint("Radius", 39, 397.843752))
sketch2.addConstraint(Sketcher.Constraint("Radius", 43, 397.843752))
sketch2.addConstraint(Sketcher.Constraint("DistanceX", 7, 3, -1, 1, Q("3.3865001 in")))
sketch2.addConstraint(Sketcher.Constraint("DistanceX", 27, 3, -1, 1, Q("3.3865001 in")))
sketch2.addConstraint(Sketcher.Constraint("Radius", 3, 47.680517))
sketch2.addConstraint(Sketcher.Constraint("Radius", 15, 13.512848))
sketch2.addConstraint(Sketcher.Constraint("Radius", 19, 13.512848))
sketch2.addConstraint(Sketcher.Constraint("Radius", 30, 385.120352))
sketch2.addConstraint(Sketcher.Constraint("Radius", 31, 385.143863))
sketch2.addConstraint(Sketcher.Constraint("Radius", 33, 385.143993))
sketch2.addConstraint(Sketcher.Constraint("Radius", 35, 47.680517))
sketch2.addConstraint(Sketcher.Constraint("Radius", 37, 11.023496))
sketch2.addConstraint(Sketcher.Constraint("Radius", 45, 11.023496))
sketch2.addConstraint(Sketcher.Constraint("Radius", 48, 385.144104))
sketch2.addConstraint(Sketcher.Constraint("Radius", 50, 397.844035))
sketch2.addConstraint(Sketcher.Constraint("Radius", 54, 397.844035))
sketch2.addConstraint(Sketcher.Constraint("Radius", 59, 385.143993))
sketch2.addConstraint(Sketcher.Constraint("DistanceY", 56, 1, 56, 2, 21.430748))
sketch2.addConstraint(Sketcher.Constraint("DistanceX", 37, 3, -1, 1, 76.504701))
sketch2.addConstraint(Sketcher.Constraint("DistanceX", 45, 3, -1, 1, 76.504701))
sketch2.addConstraint(Sketcher.Constraint("DistanceY", -1, 1, 48, 3, 410.109501))
sketch2.addConstraint(Sketcher.Constraint("DistanceY", -1, 1, 2, 2, 18.306799))
sketch2.addConstraint(Sketcher.Constraint("DistanceY", 3, 1, -1, 1, 18.306799))
sketch2.addConstraint(Sketcher.Constraint("DistanceY", 6, 2, -1, 1, 51.695601))
sketch2.addConstraint(Sketcher.Constraint("DistanceY", -1, 1, 27, 2, 51.695601))
sketch2.addConstraint(Sketcher.Constraint("DistanceX", -1, 1, 34, 2, 96.6187))
sketch2.addConstraint(Sketcher.Constraint("DistanceY", -1, 1, 35, 1, 18.306799))
sketch2.addConstraint(Sketcher.Constraint("DistanceY", 46, 2, -1, 1, 18.306799))
sketch2.addConstraint(Sketcher.Constraint("DistanceY", -1, 1, 50, 2, 12.782899))
sketch2.addConstraint(Sketcher.Constraint("DistanceY", 53, 1, -1, 1, 12.782899))
sketch2.addConstraint(Sketcher.Constraint("DistanceX", -1, 1, 60, 2, 96.6187))
sketch2.addConstraint(Sketcher.Constraint("Distance", 10, 109.814092))
sketch2.addConstraint(Sketcher.Constraint("Distance", 12, 109.814092))
sketch2.addConstraint(Sketcher.Constraint("Distance", 16, 14.381139))
sketch2.addConstraint(Sketcher.Constraint("Distance", 18, 14.381139))
sketch2.addConstraint(Sketcher.Constraint("Distance", 22, 109.814092))
sketch2.addConstraint(Sketcher.Constraint("Distance", 24, 109.814092))
sketch2.addConstraint(Sketcher.Constraint("Distance", 29, 30.293411))
sketch2.addConstraint(Sketcher.Constraint("Distance", 34, 68.627809))
sketch2.addConstraint(Sketcher.Constraint("Distance", 49, 30.293411))
sketch2.addConstraint(Sketcher.Constraint("Distance", 58, 68.627809))
sketch2.addConstraint(Sketcher.Constraint("DistanceY", 41, 2, 41, 1, 35.382066))
sketch2.addConstraint(Sketcher.Constraint("DistanceX", 3, 3, -1, 1, 142.520259))
sketch2.addConstraint(Sketcher.Constraint("DistanceY", 11, 3, -1, 1, 47.811759))
sketch2.addConstraint(Sketcher.Constraint("DistanceX", -1, 1, 15, 3, 86.017061))
sketch2.addConstraint(Sketcher.Constraint("DistanceY", 15, 3, -1, 1, 11.506171))
sketch2.addConstraint(Sketcher.Constraint("DistanceX", -1, 1, 19, 3, 86.017061))
sketch2.addConstraint(Sketcher.Constraint("DistanceY", -1, 1, 19, 3, 11.506171))
sketch2.addConstraint(Sketcher.Constraint("DistanceY", -1, 1, 23, 3, 47.811759))
sketch2.addConstraint(Sketcher.Constraint("DistanceX", -1, 1, 33, 3, 79.479982))
sketch2.addConstraint(Sketcher.Constraint("DistanceX", 35, 3, -1, 1, 27.481941))
sketch2.addConstraint(Sketcher.Constraint("DistanceY", -1, 1, 38, 3, 30.630159))
sketch2.addConstraint(Sketcher.Constraint("DistanceY", 44, 3, -1, 1, 30.630159))
sketch2.addConstraint(Sketcher.Constraint("DistanceX", -1, 1, 50, 3, 79.479979))
sketch2.addConstraint(Sketcher.Constraint("DistanceY", -1, 1, 51, 3, 6.441158))
sketch2.addConstraint(Sketcher.Constraint("DistanceY", 53, 3, -1, 1, 6.441158))
sketch2.addConstraint(Sketcher.Constraint("DistanceX", -1, 1, 54, 3, 79.479979))
sketch2.addConstraint(Sketcher.Constraint("DistanceX", -1, 1, 59, 3, 79.479982))
sketch2.addConstraint(Sketcher.Constraint("DistanceY", -1, 1, 0, 2, 39.23368))
sketch2.addConstraint(Sketcher.Constraint("DistanceY", -1, 1, 1, 2, 30.76872))
sketch2.addConstraint(Sketcher.Constraint("DistanceY", 4, 2, -1, 1, 30.76872))
sketch2.addConstraint(Sketcher.Constraint("DistanceY", 5, 2, -1, 1, 39.23368))
sketch2.addConstraint(Sketcher.Constraint("DistanceX", 7, 2, -1, 1, 96.478631))
sketch2.addConstraint(Sketcher.Constraint("DistanceY", 8, 2, -1, 1, 95.76698))
sketch2.addConstraint(Sketcher.Constraint("DistanceX", 10, 2, -1, 1, 7.629691))
sketch2.addConstraint(Sketcher.Constraint("DistanceX", -1, 1, 11, 1, 7.629691))
sketch2.addConstraint(Sketcher.Constraint("DistanceX", -1, 1, 15, 2, 97.93189))
sketch2.addConstraint(Sketcher.Constraint("DistanceX", -1, 1, 17, 2, 104.71596))
sketch2.addConstraint(Sketcher.Constraint("DistanceX", -1, 1, 20, 2, 107.904862))
sketch2.addConstraint(Sketcher.Constraint("DistanceY", -1, 1, 21, 2, 103.631288))
sketch2.addConstraint(Sketcher.Constraint("DistanceX", 23, 1, -1, 1, 7.629691))
sketch2.addConstraint(Sketcher.Constraint("DistanceY", -1, 1, 25, 2, 95.76698))
sketch2.addConstraint(Sketcher.Constraint("DistanceX", 26, 2, -1, 1, 96.478631))
sketch2.addConstraint(Sketcher.Constraint("DistanceX", 29, 2, -1, 1, 83.387341))
sketch2.addConstraint(Sketcher.Constraint("DistanceY", 30, 1, -1, 1, 58.831989))
sketch2.addConstraint(Sketcher.Constraint("DistanceY", 31, 1, -1, 1, 43.404188))
sketch2.addConstraint(Sketcher.Constraint("DistanceY", 34, 2, -1, 1, 91.779831))
sketch2.addConstraint(Sketcher.Constraint("DistanceY", -1, 1, 36, 2, 30.76872))
sketch2.addConstraint(Sketcher.Constraint("DistanceX", 37, 2, -1, 1, 65.835789))
sketch2.addConstraint(Sketcher.Constraint("DistanceY", -1, 1, 37, 2, 32.227761))
sketch2.addConstraint(Sketcher.Constraint("DistanceY", 43, 2, -1, 1, 36.591882))
sketch2.addConstraint(Sketcher.Constraint("DistanceX", 44, 1, -1, 1, 65.835789))
sketch2.addConstraint(Sketcher.Constraint("DistanceY", 44, 1, -1, 1, 32.227761))
sketch2.addConstraint(Sketcher.Constraint("DistanceY", 45, 2, -1, 1, 30.76872))
sketch2.addConstraint(Sketcher.Constraint("DistanceX", 48, 1, -1, 1, 83.387341))
sketch2.addConstraint(Sketcher.Constraint("DistanceY", -1, 1, 60, 2, 91.779831))
sketch2.addConstraint(Sketcher.Constraint("Distance", 0, 13.496348))
sketch2.addConstraint(Sketcher.Constraint("Distance", 6, 13.496348))
sketch2.addConstraint(Sketcher.Constraint("Distance", 14, 75.809235))
sketch2.addConstraint(Sketcher.Constraint("Distance", 20, 75.809235))
sketch2.addConstraint(Sketcher.Constraint("Distance", 28, 72.248446))
sketch2.addConstraint(Sketcher.Constraint("Distance", 32, 97.777284))
sketch2.addConstraint(Sketcher.Constraint("Distance", 47, 72.248446))
sketch2.addConstraint(Sketcher.Constraint("Distance", 60, 97.777284))
sketch2.addConstraint(Sketcher.Constraint("DistanceX", -1, 1, 30, 3, 79.470107))
sketch2.addConstraint(Sketcher.Constraint("DistanceY", 30, 3, -1, 1, 410.087907))
sketch2.addConstraint(Sketcher.Constraint("DistanceX", -1, 1, 31, 3, 79.479917))
sketch2.addConstraint(Sketcher.Constraint("DistanceY", 33, 3, -1, 1, 410.109392))
sketch2.addConstraint(Sketcher.Constraint("DistanceX", -1, 1, 39, 3, 79.479895))
sketch2.addConstraint(Sketcher.Constraint("DistanceY", 42, 3, -1, 1, 17.691034))
sketch2.addConstraint(Sketcher.Constraint("DistanceX", -1, 1, 48, 3, 79.480004))
sketch2.addConstraint(Sketcher.Constraint("DistanceY", -1, 1, 59, 3, 410.109392))
sketch2.addConstraint(Sketcher.Constraint("DistanceX", -1, 1, 13, 2, 107.904862))
sketch2.addConstraint(Sketcher.Constraint("DistanceX", 38, 1, -1, 1, 57.503646))
sketch2.addConstraint(Sketcher.Constraint("DistanceX", 39, 2, -1, 1, 15.852003))
sketch2.addConstraint(Sketcher.Constraint("DistanceY", -1, 1, 40, 1, 17.691033))
sketch2.addConstraint(Sketcher.Constraint("DistanceX", 42, 1, -1, 1, 15.852003))
sketch2.addConstraint(Sketcher.Constraint("DistanceX", 47, 2, -1, 1, 38.262066))
sketch2.addConstraint(Sketcher.Constraint("DistanceX", -1, 1, 51, 1, 64.768196))
sketch2.addConstraint(Sketcher.Constraint("DistanceX", -1, 1, 52, 2, 64.768196))
sketch2.addConstraint(Sketcher.Constraint("DistanceX", -1, 1, 54, 2, 18.349308))
sketch2.addConstraint(Sketcher.Constraint("DistanceY", 55, 1, -1, 1, 10.715374))
sketch2.addConstraint(Sketcher.Constraint("DistanceX", -1, 1, 57, 1, 18.349308))
sketch2.setExpression("Constraints[69]", "Params.sketch2_radius")
sketch2.setExpression("Constraints[70]", "Params.sketch2_radius2")
sketch2.setExpression("Constraints[71]", "Params.sketch2_radius3")
sketch2.setExpression("Constraints[72]", "Params.sketch2_radius4")
sketch2.setExpression("Constraints[73]", "Params.sketch2_radius5")
pad2 = body2.newObject("PartDesign::Pad", "Pad001")
pad2.Profile = sketch2
pad2.setExpression("Length", "Params.pad2_length")
doc.recompute()

fillet2 = body2.newObject("PartDesign::Fillet", "Fillet001")
fillet2.Base = (pad2, edges_at(pad2, [
    (80.935, -24.968, 12.7),
    (96.619, 91.78, 12.7),
    (-93.884, 89.513, 12.7),
    (-83.387, -61.096, 12.7),
    (21.343, -29.379, 12.7),
    (96.619, -91.78, 12.7),
    (-93.884, -89.513, 12.7),
    (-38.262, -43.404, 12.7),
    (80.935, 24.968, 12.7),
    (-38.262, 43.404, 12.7),
    (-83.387, 61.096, 12.7),
    (21.343, 29.379, 12.7),
]))
fillet2.setExpression("Radius", "Params.fillet2_radius")
doc.recompute()

fillet3 = body2.newObject("PartDesign::Fillet", "Fillet002")
fillet3.Base = (fillet2, edges_at(fillet2, [
    (-95.418, 103.631, 12.7),
    (95.418, 103.631, 12.7),
    (-107.134, -95.767, 12.7),
    (-107.134, 95.767, 12.7),
    (95.418, -103.631, 12.7),
    (-95.418, -103.631, 12.7),
    (107.905, -96.038, 12.7),
    (107.905, 96.038, 12.7),
]))
fillet3.setExpression("Radius", "Params.fillet3_radius")
doc.recompute()

boolean = body2.newObject("PartDesign::Boolean", "Boolean")
boolean.Type = "Common"
boolean.addObjects([body])

doc.recompute()
